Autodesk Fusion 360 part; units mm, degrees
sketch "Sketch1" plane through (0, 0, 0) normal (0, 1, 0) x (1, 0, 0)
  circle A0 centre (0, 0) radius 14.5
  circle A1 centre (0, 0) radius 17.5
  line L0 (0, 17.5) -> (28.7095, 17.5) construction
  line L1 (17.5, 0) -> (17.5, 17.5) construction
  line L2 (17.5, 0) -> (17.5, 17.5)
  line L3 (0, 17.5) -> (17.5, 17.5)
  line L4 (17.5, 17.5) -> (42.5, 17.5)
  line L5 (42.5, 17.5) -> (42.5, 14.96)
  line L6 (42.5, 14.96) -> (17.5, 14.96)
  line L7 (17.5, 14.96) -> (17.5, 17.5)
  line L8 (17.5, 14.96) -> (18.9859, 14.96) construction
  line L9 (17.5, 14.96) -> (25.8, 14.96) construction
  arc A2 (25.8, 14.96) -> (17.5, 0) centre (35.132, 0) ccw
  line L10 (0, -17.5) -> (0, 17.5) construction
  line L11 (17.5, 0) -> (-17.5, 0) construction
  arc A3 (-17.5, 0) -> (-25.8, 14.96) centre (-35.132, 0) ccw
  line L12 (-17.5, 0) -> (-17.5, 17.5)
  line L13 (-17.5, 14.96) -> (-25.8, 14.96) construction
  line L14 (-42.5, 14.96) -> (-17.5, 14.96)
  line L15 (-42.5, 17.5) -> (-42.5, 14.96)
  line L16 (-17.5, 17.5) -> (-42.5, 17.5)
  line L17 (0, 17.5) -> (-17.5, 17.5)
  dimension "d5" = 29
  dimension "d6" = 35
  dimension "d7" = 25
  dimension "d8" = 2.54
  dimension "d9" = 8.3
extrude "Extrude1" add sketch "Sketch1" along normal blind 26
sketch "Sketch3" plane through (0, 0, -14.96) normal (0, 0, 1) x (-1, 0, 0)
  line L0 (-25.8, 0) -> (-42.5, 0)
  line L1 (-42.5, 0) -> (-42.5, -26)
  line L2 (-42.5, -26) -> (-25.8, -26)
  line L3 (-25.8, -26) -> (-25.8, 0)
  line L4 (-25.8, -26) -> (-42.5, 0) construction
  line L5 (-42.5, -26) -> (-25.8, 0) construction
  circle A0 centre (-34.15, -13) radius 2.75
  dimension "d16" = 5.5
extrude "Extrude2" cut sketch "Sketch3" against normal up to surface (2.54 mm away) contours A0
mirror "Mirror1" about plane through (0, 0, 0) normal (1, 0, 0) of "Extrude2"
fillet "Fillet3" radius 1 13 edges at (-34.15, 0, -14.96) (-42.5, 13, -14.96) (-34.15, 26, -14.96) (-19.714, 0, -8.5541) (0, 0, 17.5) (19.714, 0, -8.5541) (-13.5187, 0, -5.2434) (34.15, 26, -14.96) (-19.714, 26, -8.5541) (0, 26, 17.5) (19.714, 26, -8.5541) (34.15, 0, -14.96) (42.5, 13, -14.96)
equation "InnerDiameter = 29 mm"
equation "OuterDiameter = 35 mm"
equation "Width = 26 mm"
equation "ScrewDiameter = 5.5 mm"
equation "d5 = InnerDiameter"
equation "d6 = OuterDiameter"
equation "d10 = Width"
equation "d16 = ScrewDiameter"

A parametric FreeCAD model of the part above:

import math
import FreeCAD as App
import Part
import Sketcher

V = App.Vector


def edges_at(feature, points):
    """Names of the edges that pass closest to the given points."""
    edges = feature.Shape.Edges
    near = lambda p: min(range(len(edges)), key=lambda i: edges[i].distToShape(Part.Vertex(*p))[0])
    return sorted({f"Edge{near(p) + 1}" for p in points})

doc = App.newDocument("Part")
body = doc.addObject("PartDesign::Body", "Body")

# Sketch on XZ plane
sketch1 = doc.addObject("Sketcher::SketchObject", "Sketch")
body.addObject(sketch1)
sketch1.AttachmentSupport = (doc.XZ_Plane, [""])
sketch1.MapMode = "FlatFace"
sketch1.addGeometry([
    Part.ArcOfCircle(Part.Circle(V(0, 0, 0), V(0, 0, 1), 17.5), math.radians(0), math.radians(180)),  # 0
    Part.ArcOfCircle(Part.Circle(V(35.1, 0, 0), V(0, 0, 1), 17.6), math.radians(180), math.radians(238)),  # 1
    Part.LineSegment(V(25.8, -15, 0), V(42.5, -15, 0)),  # 2
    Part.LineSegment(V(42.5, -15, 0), V(42.5, -17.5, 0)),  # 3
    Part.LineSegment(V(42.5, -17.5, 0), V(-42.5, -17.5, 0)),  # 4
    Part.LineSegment(V(-42.5, -17.5, 0), V(-42.5, -15, 0)),  # 5
    Part.LineSegment(V(-42.5, -15, 0), V(-25.8, -15, 0)),  # 6
    Part.ArcOfCircle(Part.Circle(V(-35.1, 0, 0), V(0, 0, 1), 17.6), math.radians(-58), math.radians(0)),  # 7
    Part.Circle(V(0, 0, 0), V(0, 0, 1), 14.5),  # 8
], False)
sketch1.addConstraint([
    Sketcher.Constraint("Tangent", 0, 1, 1, 1),
    Sketcher.Constraint("Coincident", 1, 2, 2, 1),
    Sketcher.Constraint("Coincident", 2, 2, 3, 1),
    Sketcher.Constraint("Coincident", 3, 2, 4, 1),
    Sketcher.Constraint("Coincident", 4, 2, 5, 1),
    Sketcher.Constraint("Coincident", 5, 2, 6, 1),
    Sketcher.Constraint("Coincident", 6, 2, 7, 1),
    Sketcher.Constraint("Tangent", 7, 2, 0, 2),
    Sketcher.Constraint("Horizontal", 2),
    Sketcher.Constraint("Vertical", 3),
    Sketcher.Constraint("Horizontal", 4),
    Sketcher.Constraint("Vertical", 5),
    Sketcher.Constraint("Horizontal", 6),
    Sketcher.Constraint("Coincident", 0, 3, -1, 1),
    Sketcher.Constraint("Coincident", 8, 3, -1, 1),
    Sketcher.Constraint("Equal", 1, 7),
    Sketcher.Constraint("Symmetric", 2, 2, 5, 2, -2),
    Sketcher.Constraint("PointOnObject", 1, 3, -1),
    Sketcher.Constraint("PointOnObject", 7, 3, -1),
    Sketcher.Constraint("Diameter", 8, 29.0),
    Sketcher.Constraint("Radius", 0, 17.5),
    Sketcher.Constraint("DistanceX", 0, 1, 2, 2, 25.0),
    Sketcher.Constraint("DistanceY", 3, 2, 3, 1, 2.54),
    Sketcher.Constraint("DistanceX", 0, 1, 1, 2, 8.3),
    Sketcher.Constraint("Radius", 1, 17.632),
])
pad1 = doc.addObject("PartDesign::Pad", "Pad")
body.addObject(pad1)
pad1.Profile = sketch1
pad1.Length = 26
pad1.Reversed = True

# Sketch on XY plane
sketch2 = doc.addObject("Sketcher::SketchObject", "Sketch001")
body.addObject(sketch2)
sketch2.AttachmentSupport = (doc.XY_Plane, [""])
sketch2.MapMode = "FlatFace"
sketch2.AttachmentOffset = App.Placement(V(0, 0, -14.96), App.Rotation())
sketch2.addGeometry(Part.Circle(V(34.1, 13, 0), V(0, 0, 1), 2.8), False)
sketch2.addConstraint([
    Sketcher.Constraint("Diameter", 0, 5.5),
    Sketcher.Constraint("DistanceY", -1, 1, 0, 3, 13.0),
    Sketcher.Constraint("DistanceX", -1, 1, 0, 3, 34.15),
])
pocket1 = doc.addObject("PartDesign::Pocket", "Pocket")
body.addObject(pocket1)
pocket1.Profile = sketch2
pocket1.Length = 2.54
doc.recompute()

mirrored = doc.addObject("PartDesign::Mirrored", "Mirrored")
body.addObject(mirrored)
mirrored.Originals = [pocket1]
mirrored.MirrorPlane = (doc.YZ_Plane, [""])
body.Tip = mirrored
doc.recompute()

fillet = doc.addObject("PartDesign::Fillet", "Fillet")
body.addObject(fillet)
fillet.Base = (mirrored, edges_at(mirrored, [
    (-34.15, 0, -14.96),
    (-42.5, 13, -14.96),
    (-34.15, 26, -14.96),
    (-19.714, 0, -8.554),
    (0, 0, 17.5),
    (19.714, 0, -8.554),
    (-13.519, 0, -5.243),
    (34.15, 26, -14.96),
    (-19.714, 26, -8.554),
    (0, 26, 17.5),
    (19.714, 26, -8.554),
    (34.15, 0, -14.96),
    (42.5, 13, -14.96),
]))
fillet.Radius = 1

doc.recompute()
